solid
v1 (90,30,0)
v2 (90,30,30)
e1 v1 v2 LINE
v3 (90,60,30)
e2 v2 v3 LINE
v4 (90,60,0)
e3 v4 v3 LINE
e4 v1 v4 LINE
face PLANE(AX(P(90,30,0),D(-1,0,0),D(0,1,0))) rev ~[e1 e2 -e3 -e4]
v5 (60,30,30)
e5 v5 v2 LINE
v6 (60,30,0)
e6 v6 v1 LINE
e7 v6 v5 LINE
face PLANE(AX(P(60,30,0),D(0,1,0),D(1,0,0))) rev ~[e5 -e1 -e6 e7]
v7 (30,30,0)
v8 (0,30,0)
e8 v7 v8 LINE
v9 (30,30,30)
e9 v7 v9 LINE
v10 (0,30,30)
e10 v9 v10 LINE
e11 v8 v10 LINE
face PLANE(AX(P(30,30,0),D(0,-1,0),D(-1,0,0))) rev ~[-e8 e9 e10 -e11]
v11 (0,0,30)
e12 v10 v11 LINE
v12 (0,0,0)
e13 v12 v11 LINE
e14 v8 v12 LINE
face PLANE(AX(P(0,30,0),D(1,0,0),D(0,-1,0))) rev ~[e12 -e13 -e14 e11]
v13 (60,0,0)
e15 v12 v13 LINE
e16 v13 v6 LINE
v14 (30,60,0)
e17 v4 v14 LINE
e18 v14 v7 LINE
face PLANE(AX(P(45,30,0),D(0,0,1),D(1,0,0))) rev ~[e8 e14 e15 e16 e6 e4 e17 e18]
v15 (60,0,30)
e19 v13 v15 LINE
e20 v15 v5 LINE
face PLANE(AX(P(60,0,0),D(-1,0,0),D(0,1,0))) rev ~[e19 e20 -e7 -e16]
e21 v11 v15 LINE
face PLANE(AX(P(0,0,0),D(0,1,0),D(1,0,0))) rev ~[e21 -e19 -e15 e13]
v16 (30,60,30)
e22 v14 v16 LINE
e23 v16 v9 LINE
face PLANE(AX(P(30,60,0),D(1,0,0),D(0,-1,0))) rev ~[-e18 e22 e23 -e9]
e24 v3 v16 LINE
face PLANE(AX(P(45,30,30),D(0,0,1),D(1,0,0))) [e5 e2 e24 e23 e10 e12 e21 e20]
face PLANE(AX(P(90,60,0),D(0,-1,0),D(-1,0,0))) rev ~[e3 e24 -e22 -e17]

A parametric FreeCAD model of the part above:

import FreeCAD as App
import Part
import Sketcher

V = App.Vector
Q = App.Units.Quantity


def add_polygon(sketch, points):
    """Adds a closed chain of lines whose ends are joined by coincident constraints."""
    first, n = sketch.GeometryCount, len(points)
    for a, b in zip(points, points[1:] + points[:1]):
        sketch.addGeometry(Part.LineSegment(App.Vector(*a, 0), App.Vector(*b, 0)), False)
    for i in range(n):
        sketch.addConstraint(Sketcher.Constraint("Coincident", first + i, 2, first + (i + 1) % n, 1))

doc = App.newDocument("Part")
body = doc.addObject("PartDesign::Body", "Body")

sketch1 = body.newObject("Sketcher::SketchObject", "Sketch")
sketch1.AttachmentSupport = (doc.getObject("XY_Plane"), [""])
sketch1.MapMode = "FlatFace"
add_polygon(sketch1, [(0, 0), (60, 0), (60, 30), (90, 30), (90, 60), (30, 60), (30, 30), (0, 30)])
sketch1.addConstraint(Sketcher.Constraint("Horizontal", 0))
sketch1.addConstraint(Sketcher.Constraint("Vertical", 1))
sketch1.addConstraint(Sketcher.Constraint("Horizontal", 2))
sketch1.addConstraint(Sketcher.Constraint("Vertical", 3))
sketch1.addConstraint(Sketcher.Constraint("Horizontal", 4))
sketch1.addConstraint(Sketcher.Constraint("Vertical", 5))
sketch1.addConstraint(Sketcher.Constraint("Horizontal", 6))
sketch1.addConstraint(Sketcher.Constraint("Vertical", 7))
sketch1.addConstraint(Sketcher.Constraint("Coincident", 7, 2, -1, 1))
sketch1.addConstraint(Sketcher.Constraint("Horizontal", 2, 2, 5, 2))
sketch1.addConstraint(Sketcher.Constraint("Equal", 0, 4))
sketch1.addConstraint(Sketcher.Constraint("Equal", 6, 1))
sketch1.addConstraint(Sketcher.Constraint("Equal", 1, 3))
sketch1.addConstraint(Sketcher.Constraint("DistanceX", 0, 1, 0, 2, Q("60 mm")))
sketch1.addConstraint(Sketcher.Constraint("DistanceX", 2, 1, 2, 2, Q("30 mm")))
pad1 = body.newObject("PartDesign::Pad", "Pad")
pad1.Profile = sketch1
pad1.Length = 30

doc.recompute()
